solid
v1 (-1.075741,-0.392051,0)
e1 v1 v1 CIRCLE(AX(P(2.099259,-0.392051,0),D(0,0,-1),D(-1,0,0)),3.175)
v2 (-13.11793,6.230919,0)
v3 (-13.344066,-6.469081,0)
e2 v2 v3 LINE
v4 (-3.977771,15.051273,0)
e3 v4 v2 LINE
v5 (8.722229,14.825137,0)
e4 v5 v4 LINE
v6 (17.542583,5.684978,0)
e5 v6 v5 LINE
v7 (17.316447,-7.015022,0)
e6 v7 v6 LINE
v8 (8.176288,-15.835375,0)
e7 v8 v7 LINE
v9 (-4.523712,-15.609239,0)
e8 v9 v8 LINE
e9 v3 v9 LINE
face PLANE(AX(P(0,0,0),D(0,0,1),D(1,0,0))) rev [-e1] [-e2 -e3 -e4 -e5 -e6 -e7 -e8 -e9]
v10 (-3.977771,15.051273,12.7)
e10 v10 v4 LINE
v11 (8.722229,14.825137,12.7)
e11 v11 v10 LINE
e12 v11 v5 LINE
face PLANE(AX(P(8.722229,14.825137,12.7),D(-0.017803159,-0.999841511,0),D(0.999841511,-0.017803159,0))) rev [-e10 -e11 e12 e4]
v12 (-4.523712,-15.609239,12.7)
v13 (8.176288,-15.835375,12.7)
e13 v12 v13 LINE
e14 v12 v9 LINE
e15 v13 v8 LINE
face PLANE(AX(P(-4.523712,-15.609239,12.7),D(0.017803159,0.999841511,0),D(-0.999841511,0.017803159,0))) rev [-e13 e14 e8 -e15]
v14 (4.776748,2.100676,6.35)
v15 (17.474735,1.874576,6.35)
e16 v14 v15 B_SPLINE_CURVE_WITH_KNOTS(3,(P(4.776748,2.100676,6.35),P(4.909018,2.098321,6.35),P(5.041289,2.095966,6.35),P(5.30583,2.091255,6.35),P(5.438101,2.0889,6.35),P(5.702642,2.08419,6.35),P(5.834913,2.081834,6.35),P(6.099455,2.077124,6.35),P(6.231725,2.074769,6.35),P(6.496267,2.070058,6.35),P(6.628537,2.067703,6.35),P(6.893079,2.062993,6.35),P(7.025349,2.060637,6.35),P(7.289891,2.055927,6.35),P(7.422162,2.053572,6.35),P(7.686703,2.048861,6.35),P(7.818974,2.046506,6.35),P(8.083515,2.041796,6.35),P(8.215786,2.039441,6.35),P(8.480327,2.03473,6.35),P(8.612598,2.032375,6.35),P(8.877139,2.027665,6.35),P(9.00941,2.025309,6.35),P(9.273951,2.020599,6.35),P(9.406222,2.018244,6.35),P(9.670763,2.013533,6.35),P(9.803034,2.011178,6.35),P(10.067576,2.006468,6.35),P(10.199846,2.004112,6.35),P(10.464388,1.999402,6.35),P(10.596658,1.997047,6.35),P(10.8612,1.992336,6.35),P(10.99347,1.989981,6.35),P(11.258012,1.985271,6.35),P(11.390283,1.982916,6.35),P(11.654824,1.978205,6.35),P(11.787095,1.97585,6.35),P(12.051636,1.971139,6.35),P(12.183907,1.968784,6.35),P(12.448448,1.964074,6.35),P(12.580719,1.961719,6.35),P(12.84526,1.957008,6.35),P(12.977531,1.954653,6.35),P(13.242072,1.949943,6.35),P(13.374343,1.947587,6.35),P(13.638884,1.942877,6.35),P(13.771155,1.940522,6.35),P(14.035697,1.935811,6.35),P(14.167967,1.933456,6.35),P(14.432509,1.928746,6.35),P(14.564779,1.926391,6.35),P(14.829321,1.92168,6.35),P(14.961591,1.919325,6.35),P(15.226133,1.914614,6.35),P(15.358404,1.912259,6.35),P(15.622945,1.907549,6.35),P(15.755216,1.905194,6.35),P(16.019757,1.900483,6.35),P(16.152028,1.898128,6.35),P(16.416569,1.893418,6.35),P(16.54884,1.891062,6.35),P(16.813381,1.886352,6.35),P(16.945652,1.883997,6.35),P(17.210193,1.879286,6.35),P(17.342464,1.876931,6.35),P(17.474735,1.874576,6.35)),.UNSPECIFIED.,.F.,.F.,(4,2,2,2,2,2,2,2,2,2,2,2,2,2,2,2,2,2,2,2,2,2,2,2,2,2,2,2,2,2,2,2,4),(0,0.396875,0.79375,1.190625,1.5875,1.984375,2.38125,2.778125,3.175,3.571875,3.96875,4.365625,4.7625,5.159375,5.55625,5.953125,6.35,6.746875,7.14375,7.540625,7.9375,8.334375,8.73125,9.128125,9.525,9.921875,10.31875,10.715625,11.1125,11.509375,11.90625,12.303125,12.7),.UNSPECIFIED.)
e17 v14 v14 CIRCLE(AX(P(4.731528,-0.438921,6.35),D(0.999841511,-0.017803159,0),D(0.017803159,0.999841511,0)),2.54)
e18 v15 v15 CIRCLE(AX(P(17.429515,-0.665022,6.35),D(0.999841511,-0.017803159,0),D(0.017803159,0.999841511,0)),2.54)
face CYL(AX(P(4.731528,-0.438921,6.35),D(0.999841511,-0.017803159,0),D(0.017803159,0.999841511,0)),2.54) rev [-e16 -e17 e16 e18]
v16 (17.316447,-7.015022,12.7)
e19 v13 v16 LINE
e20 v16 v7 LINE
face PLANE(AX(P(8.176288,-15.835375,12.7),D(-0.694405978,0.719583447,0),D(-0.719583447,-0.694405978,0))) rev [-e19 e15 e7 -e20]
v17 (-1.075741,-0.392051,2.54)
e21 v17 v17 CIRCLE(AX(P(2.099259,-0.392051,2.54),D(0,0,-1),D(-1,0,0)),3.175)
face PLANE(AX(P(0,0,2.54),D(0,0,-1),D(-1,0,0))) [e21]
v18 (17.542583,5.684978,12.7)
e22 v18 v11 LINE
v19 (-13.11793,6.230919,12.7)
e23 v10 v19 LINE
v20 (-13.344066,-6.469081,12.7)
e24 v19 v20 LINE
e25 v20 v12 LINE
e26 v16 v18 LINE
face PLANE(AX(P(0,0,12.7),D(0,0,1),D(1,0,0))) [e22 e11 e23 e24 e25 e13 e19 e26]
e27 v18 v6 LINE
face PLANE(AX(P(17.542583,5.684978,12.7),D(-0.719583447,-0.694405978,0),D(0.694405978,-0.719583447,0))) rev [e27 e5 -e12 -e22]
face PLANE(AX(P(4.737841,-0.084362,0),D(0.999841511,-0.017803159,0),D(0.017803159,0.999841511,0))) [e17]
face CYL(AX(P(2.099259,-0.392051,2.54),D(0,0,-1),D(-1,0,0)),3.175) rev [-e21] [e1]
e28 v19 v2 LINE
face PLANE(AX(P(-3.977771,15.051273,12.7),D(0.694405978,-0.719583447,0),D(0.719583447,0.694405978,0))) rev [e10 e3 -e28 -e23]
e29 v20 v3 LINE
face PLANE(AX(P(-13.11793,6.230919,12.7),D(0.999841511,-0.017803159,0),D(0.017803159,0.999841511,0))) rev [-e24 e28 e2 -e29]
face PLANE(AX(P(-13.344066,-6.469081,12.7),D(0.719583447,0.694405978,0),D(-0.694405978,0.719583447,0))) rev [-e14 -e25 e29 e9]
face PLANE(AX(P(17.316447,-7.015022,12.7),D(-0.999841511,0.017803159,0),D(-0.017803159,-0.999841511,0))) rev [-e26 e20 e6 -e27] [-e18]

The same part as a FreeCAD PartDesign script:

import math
import FreeCAD as App
import Part
import Sketcher
Q = App.Units.Quantity

doc = App.newDocument("Part")
body = doc.addObject("PartDesign::Body", "Body")

# Sketch on XY plane
sketch1 = body.newObject("Sketcher::SketchObject", "Sketch")
sketch1.AttachmentSupport = (doc.getObject("XY_Plane"), [""])
sketch1.MapMode = "FlatFace"
sketch1.addGeometry([
    Part.LineSegment(App.Vector(17, -7, 0), App.Vector(18, 6, 0)),  # 0
    Part.LineSegment(App.Vector(18, 6, 0), App.Vector(9, 15, 0)),  # 1
    Part.LineSegment(App.Vector(9, 15, 0), App.Vector(-4, 15, 0)),  # 2
    Part.LineSegment(App.Vector(-4, 15, 0), App.Vector(-13, 6, 0)),  # 3
    Part.LineSegment(App.Vector(-13, 6, 0), App.Vector(-13, -6, 0)),  # 4
    Part.LineSegment(App.Vector(-13, -6, 0), App.Vector(-5, -16, 0)),  # 5
    Part.LineSegment(App.Vector(-5, -16, 0), App.Vector(8, -16, 0)),  # 6
    Part.LineSegment(App.Vector(8, -16, 0), App.Vector(17, -7, 0)),  # 7
], False)
sketch1.addConstraint([
    Sketcher.Constraint("Coincident", 0, 2, 1, 1),
    Sketcher.Constraint("Coincident", 1, 2, 2, 1),
    Sketcher.Constraint("Coincident", 2, 2, 3, 1),
    Sketcher.Constraint("Coincident", 3, 2, 4, 1),
    Sketcher.Constraint("Coincident", 4, 2, 5, 1),
    Sketcher.Constraint("Coincident", 5, 2, 6, 1),
    Sketcher.Constraint("Coincident", 6, 2, 7, 1),
    Sketcher.Constraint("Coincident", 7, 2, 0, 1),
    Sketcher.Constraint("Perpendicular", 0, 2),
    Sketcher.Constraint("Perpendicular", 1, 3),
    Sketcher.Constraint("Perpendicular", 2, 4),
    Sketcher.Constraint("Perpendicular", 3, 5),
    Sketcher.Constraint("Perpendicular", 4, 6),
    Sketcher.Constraint("Perpendicular", 5, 7),
    Sketcher.Constraint("Equal", 0, 1),
    Sketcher.Constraint("Equal", 1, 2),
    Sketcher.Constraint("Equal", 2, 3),
    Sketcher.Constraint("Equal", 3, 4),
    Sketcher.Constraint("Equal", 4, 5),
    Sketcher.Constraint("DistanceX", 2, 2, 1, 2, Q("0.5 in")),
    Sketcher.Constraint("DistanceY", -1, 1, 0, 2, 5.684978),
    Sketcher.Constraint("DistanceX", -1, 1, 1, 2, 8.722229),
    Sketcher.Constraint("DistanceX", 3, 2, -1, 1, 13.11793),
    Sketcher.Constraint("DistanceY", -1, 1, 3, 2, 6.230919),
])
pad1 = body.newObject("PartDesign::Pad", "Pad")
pad1.Profile = sketch1
pad1.Length = Q("0.5 in")

# Sketch on an angled plane
sketch2 = body.newObject("Sketcher::SketchObject", "Sketch001")
sketch2.Placement = App.Placement(App.Vector(17.435828, -0.310462, 0), App.Rotation(App.Vector(0, 0, -1), App.Vector(0.017803159, 0.999841511, 0), App.Vector(0.999841511, -0.017803159, 0), "ZXY"))
sketch2.addGeometry([
    Part.ArcOfCircle(Part.Circle(App.Vector(-6.4, -0.4, 0), App.Vector(0, 0, 1), 2.5), math.radians(-45), math.radians(0)),  # 0
    Part.ArcOfCircle(Part.Circle(App.Vector(-6.4, -0.4, 0), App.Vector(0, 0, 1), 2.5), math.radians(0), math.radians(45)),  # 1
    Part.ArcOfCircle(Part.Circle(App.Vector(-6.3, -0.4, 0), App.Vector(0, 0, 1), 2.5), math.radians(45), math.radians(135)),  # 2
    Part.ArcOfCircle(Part.Circle(App.Vector(-6.3, -0.4, 0), App.Vector(0, 0, 1), 2.5), math.radians(135), math.radians(225)),  # 3
    Part.ArcOfCircle(Part.Circle(App.Vector(-6.3, -0.4, 0), App.Vector(0, 0, 1), 2.5), math.radians(-135), math.radians(-45)),  # 4
], False)
sketch2.addConstraint([
    Sketcher.Constraint("Tangent", 0, 2, 1, 1),
    Sketcher.Constraint("Tangent", 1, 2, 2, 1),
    Sketcher.Constraint("Tangent", 2, 2, 3, 1),
    Sketcher.Constraint("Tangent", 3, 2, 4, 1),
    Sketcher.Constraint("Tangent", 4, 2, 0, 1),
    Sketcher.Constraint("Coincident", 2, 3, 0, 3),
    Sketcher.Constraint("Horizontal", 4, 3, 0, 2),
    Sketcher.Constraint("Horizontal", 1, 2, 2, 2),
    Sketcher.Constraint("Horizontal", 3, 2, 4, 2),
    Sketcher.Constraint("Vertical", 2, 2, 3, 2),
    Sketcher.Constraint("Radius", 0, Q("0.1 in")),
    Sketcher.Constraint("DistanceX", 0, 3, -1, 1, Q("0.25 in")),
    Sketcher.Constraint("DistanceX", 1, 2, -1, 1, 4.554091),
    Sketcher.Constraint("DistanceY", 3, 2, -1, 1, 2.150809),
])
pocket1 = body.newObject("PartDesign::Pocket", "Pocket")
pocket1.Profile = sketch2
pocket1.Length = Q("0.5 in")

# Sketch on XY plane
sketch3 = body.newObject("Sketcher::SketchObject", "Sketch002")
sketch3.AttachmentSupport = (doc.getObject("XY_Plane"), [""])
sketch3.MapMode = "FlatFace"
sketch3.addGeometry(Part.Circle(App.Vector(2.1, -0.4, 0), App.Vector(0, 0, 1), 3.2), False)
sketch3.addConstraint([
    Sketcher.Constraint("Diameter", 0, Q("0.25 in")),
    Sketcher.Constraint("DistanceX", -1, 1, 0, 3, 2.099259),
    Sketcher.Constraint("DistanceY", 0, 3, -1, 1, 0.392051),
])
pocket2 = body.newObject("PartDesign::Pocket", "Pocket001")
pocket2.Profile = sketch3
pocket2.Length = Q("0.1 in")
pocket2.Reversed = True

doc.recompute()
